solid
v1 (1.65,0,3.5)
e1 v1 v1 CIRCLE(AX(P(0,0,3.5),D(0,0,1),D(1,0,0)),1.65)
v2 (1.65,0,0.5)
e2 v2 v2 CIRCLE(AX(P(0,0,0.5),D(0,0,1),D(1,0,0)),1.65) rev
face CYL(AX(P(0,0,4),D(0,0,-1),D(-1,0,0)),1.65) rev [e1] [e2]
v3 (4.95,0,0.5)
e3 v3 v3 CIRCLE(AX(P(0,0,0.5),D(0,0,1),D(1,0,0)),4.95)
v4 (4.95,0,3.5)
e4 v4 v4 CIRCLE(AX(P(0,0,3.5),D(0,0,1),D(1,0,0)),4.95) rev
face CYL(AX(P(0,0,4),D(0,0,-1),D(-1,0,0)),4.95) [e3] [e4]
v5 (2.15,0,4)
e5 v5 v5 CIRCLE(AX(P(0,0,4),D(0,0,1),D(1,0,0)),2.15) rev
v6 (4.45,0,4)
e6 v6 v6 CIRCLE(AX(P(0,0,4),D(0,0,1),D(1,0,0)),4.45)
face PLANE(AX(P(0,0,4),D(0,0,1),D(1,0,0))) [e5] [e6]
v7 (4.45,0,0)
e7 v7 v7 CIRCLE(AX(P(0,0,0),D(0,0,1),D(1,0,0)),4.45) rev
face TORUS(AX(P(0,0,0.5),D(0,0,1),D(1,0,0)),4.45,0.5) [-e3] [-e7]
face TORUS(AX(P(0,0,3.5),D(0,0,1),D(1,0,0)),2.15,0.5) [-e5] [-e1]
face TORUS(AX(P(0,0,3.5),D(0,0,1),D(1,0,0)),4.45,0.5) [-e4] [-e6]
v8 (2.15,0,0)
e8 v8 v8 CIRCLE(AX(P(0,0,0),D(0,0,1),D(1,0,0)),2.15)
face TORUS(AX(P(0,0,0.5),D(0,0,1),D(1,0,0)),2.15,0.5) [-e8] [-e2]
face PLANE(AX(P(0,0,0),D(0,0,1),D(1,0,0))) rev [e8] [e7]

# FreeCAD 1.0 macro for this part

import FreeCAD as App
import Part
import Sketcher
from FreeCAD import Vector


def edges_at(feature, points):
    """Names of the edges that pass closest to the given points."""
    edges = feature.Shape.Edges
    near = lambda p: min(range(len(edges)), key=lambda i: edges[i].distToShape(Part.Vertex(*p))[0])
    return sorted({f"Edge{near(p) + 1}" for p in points})

doc = App.newDocument("Part")
params = doc.addObject("Spreadsheet::Sheet", "Params")
for row, (alias, value) in enumerate([
    ("sketch1_diameter", "9.9 mm"),
    ("sketch1_diameter2", "3.3 mm"),
    ("pad1_length", "4 mm"),
    ("fillet_radius", "0.5 mm"),
], start=1):
    params.set(f"A{row}", alias)
    params.set(f"B{row}", "=" + value)
    params.setAlias(f"B{row}", alias)

body = doc.addObject("PartDesign::Body", "Body")

# Sketch on XY plane
sketch1 = body.newObject("Sketcher::SketchObject", "Sketch")
sketch1.AttachmentSupport = (doc.getObject("XY_Plane"), [""])
sketch1.MapMode = "FlatFace"
sketch1.addGeometry([
    Part.Circle(Vector(0, 0, 0), Vector(0, 0, 1), 5),
    Part.Circle(Vector(0, 0, 0), Vector(0, 0, 1), 1.6),
], False)
sketch1.addConstraint([
    Sketcher.Constraint("Coincident", 0, 3, -1, 1),
    Sketcher.Constraint("Coincident", 1, 3, -1, 1),
    Sketcher.Constraint("Diameter", 0, 9.9),
    Sketcher.Constraint("Diameter", 1, 3.3),
])
sketch1.setExpression("Constraints[2]", "Params.sketch1_diameter")
sketch1.setExpression("Constraints[3]", "Params.sketch1_diameter2")
pad1 = body.newObject("PartDesign::Pad", "Pad")
pad1.Profile = sketch1
pad1.setExpression("Length", "Params.pad1_length")
doc.recompute()

fillet = body.newObject("PartDesign::Fillet", "Fillet")
fillet.Base = (pad1, edges_at(pad1, [
    (-4.95, 0, 0),
    (-4.95, 0, 4),
    (-1.65, 0, 0),
    (-1.65, 0, 4),
]))
fillet.setExpression("Radius", "Params.fillet_radius")

doc.recompute()
